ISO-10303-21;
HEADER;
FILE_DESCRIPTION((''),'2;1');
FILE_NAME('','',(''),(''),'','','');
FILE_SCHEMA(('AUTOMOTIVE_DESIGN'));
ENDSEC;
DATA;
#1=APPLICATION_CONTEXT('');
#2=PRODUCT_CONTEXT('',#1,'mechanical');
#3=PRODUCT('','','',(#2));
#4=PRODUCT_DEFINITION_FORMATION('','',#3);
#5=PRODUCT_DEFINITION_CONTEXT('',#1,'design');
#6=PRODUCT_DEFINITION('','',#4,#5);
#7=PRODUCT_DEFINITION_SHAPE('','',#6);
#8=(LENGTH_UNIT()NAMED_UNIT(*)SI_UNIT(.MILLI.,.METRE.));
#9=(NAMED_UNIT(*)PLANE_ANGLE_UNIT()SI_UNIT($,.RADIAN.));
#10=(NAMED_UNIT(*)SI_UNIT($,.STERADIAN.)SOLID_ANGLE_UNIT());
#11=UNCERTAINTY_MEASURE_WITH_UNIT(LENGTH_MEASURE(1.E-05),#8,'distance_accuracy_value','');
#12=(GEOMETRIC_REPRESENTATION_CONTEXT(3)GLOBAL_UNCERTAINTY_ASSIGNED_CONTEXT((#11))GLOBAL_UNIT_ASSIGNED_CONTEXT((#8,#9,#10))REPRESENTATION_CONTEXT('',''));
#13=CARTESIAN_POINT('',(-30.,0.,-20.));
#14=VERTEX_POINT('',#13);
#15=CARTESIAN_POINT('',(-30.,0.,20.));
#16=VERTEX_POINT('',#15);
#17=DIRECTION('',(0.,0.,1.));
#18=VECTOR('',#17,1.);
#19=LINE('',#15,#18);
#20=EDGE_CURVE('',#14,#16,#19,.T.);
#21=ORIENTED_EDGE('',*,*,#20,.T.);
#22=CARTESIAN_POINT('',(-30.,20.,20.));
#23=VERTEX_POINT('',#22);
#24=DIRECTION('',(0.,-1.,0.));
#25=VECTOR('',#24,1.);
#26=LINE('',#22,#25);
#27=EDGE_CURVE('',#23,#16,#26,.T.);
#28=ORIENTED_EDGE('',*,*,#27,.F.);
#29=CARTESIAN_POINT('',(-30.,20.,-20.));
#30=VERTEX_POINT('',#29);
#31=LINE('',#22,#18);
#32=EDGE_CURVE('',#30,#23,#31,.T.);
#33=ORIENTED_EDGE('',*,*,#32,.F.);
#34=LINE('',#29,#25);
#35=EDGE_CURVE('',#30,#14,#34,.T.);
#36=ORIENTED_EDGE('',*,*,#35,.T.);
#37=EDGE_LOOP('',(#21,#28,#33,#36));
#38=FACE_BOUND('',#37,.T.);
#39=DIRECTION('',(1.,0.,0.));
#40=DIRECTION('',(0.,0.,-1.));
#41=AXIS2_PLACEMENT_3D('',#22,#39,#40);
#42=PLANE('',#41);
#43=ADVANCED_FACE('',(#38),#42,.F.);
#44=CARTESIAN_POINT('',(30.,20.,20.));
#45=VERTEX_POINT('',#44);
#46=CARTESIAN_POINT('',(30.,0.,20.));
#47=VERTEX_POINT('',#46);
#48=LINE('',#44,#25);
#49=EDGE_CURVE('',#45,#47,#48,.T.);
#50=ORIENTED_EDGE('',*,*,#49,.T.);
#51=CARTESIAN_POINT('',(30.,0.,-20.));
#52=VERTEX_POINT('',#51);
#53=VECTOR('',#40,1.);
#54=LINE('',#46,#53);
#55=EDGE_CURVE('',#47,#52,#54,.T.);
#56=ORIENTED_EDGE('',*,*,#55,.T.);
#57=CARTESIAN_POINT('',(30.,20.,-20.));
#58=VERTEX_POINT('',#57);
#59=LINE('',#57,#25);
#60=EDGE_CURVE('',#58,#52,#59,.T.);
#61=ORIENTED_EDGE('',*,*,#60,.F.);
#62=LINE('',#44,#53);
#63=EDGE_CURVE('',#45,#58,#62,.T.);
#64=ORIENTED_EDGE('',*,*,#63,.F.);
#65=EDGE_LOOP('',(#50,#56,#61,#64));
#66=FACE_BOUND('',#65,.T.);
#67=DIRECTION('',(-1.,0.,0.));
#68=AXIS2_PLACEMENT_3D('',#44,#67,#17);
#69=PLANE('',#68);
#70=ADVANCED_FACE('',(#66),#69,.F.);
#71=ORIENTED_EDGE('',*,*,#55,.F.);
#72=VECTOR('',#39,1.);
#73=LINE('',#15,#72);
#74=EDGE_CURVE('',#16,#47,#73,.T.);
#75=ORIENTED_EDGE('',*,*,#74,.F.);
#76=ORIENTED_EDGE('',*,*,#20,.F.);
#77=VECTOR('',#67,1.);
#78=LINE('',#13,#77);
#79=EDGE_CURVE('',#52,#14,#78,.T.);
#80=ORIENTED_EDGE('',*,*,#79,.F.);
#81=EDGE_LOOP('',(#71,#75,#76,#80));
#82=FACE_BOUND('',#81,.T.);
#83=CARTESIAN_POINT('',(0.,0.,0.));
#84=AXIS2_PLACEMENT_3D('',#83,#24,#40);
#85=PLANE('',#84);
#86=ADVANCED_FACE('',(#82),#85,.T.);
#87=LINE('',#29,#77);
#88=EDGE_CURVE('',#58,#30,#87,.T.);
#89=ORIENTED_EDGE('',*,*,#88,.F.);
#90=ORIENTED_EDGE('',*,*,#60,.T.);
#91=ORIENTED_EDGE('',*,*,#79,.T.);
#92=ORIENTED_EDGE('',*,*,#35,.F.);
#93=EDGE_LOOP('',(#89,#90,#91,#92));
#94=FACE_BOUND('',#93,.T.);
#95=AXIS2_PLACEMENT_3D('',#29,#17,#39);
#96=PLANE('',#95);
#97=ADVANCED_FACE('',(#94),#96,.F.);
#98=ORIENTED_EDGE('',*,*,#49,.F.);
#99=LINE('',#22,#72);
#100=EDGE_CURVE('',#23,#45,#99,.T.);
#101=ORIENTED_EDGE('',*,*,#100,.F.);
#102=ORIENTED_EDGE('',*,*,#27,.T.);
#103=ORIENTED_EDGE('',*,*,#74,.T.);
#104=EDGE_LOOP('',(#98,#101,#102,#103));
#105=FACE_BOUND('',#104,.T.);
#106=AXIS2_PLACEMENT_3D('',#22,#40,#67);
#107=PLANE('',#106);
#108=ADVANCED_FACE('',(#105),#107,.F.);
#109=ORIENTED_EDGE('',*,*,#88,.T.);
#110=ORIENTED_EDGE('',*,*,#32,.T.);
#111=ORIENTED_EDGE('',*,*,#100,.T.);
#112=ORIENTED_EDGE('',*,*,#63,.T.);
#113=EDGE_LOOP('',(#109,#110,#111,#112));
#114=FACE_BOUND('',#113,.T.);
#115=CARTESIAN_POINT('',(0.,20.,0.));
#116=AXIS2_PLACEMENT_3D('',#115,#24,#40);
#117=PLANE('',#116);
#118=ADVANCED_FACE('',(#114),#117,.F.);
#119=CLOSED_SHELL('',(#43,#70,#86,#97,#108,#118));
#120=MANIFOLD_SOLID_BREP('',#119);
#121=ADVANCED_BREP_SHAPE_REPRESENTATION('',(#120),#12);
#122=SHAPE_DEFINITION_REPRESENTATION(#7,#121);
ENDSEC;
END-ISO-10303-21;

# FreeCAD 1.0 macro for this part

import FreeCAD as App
import Part
import Sketcher
Q = App.Units.Quantity

doc = App.newDocument("Part")
body = doc.addObject("PartDesign::Body", "Body")

# Sketch on XZ plane
sketch1 = body.newObject("Sketcher::SketchObject", "Sketch")
sketch1.AttachmentSupport = (doc.getObject("XZ_Plane"), [""])
sketch1.MapMode = "FlatFace"
sketch1.addGeometry([
    Part.LineSegment(App.Vector(-30, -20, 0), App.Vector(-30, 20, 0)),
    Part.LineSegment(App.Vector(-30, 20, 0), App.Vector(30, 20, 0)),
    Part.LineSegment(App.Vector(30, 20, 0), App.Vector(30, -20, 0)),
    Part.LineSegment(App.Vector(30, -20, 0), App.Vector(-30, -20, 0)),
], False)
sketch1.addConstraint([
    Sketcher.Constraint("Coincident", 0, 2, 1, 1),
    Sketcher.Constraint("Coincident", 1, 2, 2, 1),
    Sketcher.Constraint("Coincident", 2, 2, 3, 1),
    Sketcher.Constraint("Coincident", 3, 2, 0, 1),
    Sketcher.Constraint("Vertical", 0),
    Sketcher.Constraint("Horizontal", 1),
    Sketcher.Constraint("Vertical", 2),
    Sketcher.Constraint("Horizontal", 3),
    Sketcher.Constraint("Symmetric", 0, 2, 2, 2, -1, 1),
    Sketcher.Constraint("DistanceX", 1, 1, 1, 2, Q("60 mm")),
    Sketcher.Constraint("DistanceY", 0, 1, 0, 2, Q("40 mm")),
])
pad1 = body.newObject("PartDesign::Pad", "Pad")
pad1.Profile = sketch1
pad1.Length = 20
pad1.Reversed = True

doc.recompute()
